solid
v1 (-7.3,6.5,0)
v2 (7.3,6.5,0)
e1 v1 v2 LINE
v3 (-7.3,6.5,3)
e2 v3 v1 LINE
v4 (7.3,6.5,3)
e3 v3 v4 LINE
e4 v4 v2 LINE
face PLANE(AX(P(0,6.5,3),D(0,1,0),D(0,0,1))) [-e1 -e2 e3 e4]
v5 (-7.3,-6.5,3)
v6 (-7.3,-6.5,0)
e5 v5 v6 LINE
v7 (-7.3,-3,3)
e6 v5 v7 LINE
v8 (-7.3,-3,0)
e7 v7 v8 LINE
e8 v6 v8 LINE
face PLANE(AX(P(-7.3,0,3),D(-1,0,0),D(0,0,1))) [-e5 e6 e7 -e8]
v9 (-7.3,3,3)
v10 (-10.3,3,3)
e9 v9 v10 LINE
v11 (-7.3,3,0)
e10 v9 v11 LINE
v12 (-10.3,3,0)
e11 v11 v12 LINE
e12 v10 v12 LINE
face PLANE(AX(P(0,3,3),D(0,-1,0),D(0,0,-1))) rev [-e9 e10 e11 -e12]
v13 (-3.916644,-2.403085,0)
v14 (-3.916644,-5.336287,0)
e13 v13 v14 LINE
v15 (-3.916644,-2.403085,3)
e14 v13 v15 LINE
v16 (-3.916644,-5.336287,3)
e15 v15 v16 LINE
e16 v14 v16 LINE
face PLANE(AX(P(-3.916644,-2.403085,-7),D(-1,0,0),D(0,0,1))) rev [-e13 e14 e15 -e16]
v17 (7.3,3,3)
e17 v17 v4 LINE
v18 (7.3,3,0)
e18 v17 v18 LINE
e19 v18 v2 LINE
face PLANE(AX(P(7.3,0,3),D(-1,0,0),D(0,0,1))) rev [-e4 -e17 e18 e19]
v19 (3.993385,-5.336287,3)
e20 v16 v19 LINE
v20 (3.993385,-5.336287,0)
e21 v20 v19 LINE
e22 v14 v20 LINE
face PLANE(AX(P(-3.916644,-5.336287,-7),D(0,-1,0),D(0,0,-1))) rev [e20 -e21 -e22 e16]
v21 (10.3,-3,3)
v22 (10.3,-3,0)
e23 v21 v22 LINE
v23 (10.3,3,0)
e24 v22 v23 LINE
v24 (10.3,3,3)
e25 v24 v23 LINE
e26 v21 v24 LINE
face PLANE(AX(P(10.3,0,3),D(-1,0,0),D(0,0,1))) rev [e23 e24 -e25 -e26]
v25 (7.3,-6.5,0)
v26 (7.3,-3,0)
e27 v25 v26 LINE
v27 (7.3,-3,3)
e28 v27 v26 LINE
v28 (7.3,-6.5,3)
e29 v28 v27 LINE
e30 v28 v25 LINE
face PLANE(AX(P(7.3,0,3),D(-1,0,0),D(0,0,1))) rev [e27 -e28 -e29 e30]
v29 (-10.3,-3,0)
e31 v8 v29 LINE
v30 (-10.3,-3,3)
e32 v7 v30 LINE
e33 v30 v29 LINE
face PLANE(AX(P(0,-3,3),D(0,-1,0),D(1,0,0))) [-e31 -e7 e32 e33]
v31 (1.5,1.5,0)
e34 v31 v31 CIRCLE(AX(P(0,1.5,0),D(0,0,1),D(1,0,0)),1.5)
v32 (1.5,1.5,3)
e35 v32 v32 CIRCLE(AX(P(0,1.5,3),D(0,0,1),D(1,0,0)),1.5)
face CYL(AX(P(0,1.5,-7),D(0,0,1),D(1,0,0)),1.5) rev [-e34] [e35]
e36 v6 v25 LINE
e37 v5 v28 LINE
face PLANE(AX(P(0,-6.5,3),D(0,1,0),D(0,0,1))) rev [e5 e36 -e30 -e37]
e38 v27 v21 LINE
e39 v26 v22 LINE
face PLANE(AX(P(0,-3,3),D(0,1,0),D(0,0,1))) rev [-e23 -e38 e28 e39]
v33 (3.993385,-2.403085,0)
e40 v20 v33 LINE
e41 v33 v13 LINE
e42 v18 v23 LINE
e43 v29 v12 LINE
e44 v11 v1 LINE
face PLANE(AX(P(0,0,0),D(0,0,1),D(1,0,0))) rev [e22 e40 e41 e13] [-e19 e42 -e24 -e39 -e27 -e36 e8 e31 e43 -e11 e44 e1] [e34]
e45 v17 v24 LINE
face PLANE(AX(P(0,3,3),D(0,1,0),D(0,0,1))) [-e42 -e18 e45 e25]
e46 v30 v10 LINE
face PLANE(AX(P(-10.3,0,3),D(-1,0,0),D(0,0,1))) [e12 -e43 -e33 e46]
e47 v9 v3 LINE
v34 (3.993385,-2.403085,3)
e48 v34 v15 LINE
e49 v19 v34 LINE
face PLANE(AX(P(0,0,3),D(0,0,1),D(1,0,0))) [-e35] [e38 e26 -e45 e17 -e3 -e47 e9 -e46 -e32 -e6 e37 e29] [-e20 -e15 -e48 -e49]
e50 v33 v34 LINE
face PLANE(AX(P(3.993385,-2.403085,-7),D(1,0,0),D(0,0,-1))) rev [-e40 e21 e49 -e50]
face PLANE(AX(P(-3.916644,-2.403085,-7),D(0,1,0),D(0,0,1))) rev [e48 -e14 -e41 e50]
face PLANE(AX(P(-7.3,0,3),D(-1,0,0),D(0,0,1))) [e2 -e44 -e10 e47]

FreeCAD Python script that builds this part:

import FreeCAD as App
import Part
import Sketcher
from FreeCAD import Vector
Q = App.Units.Quantity


def add_polygon(sketch, points):
    """Adds a closed chain of lines whose ends are joined by coincident constraints."""
    first, n = sketch.GeometryCount, len(points)
    for a, b in zip(points, points[1:] + points[:1]):
        sketch.addGeometry(Part.LineSegment(App.Vector(*a, 0), App.Vector(*b, 0)), False)
    for i in range(n):
        sketch.addConstraint(Sketcher.Constraint("Coincident", first + i, 2, first + (i + 1) % n, 1))

doc = App.newDocument("Part")
body = doc.addObject("PartDesign::Body", "Body")

# Sketch on XY plane
sketch1 = doc.addObject("Sketcher::SketchObject", "Sketch")
body.addObject(sketch1)
sketch1.AttachmentSupport = (doc.XY_Plane, [""])
sketch1.MapMode = "FlatFace"
add_polygon(sketch1, [(-7.3, -3), (-7.3, -6.5), (7.3, -6.5), (7.3, -3), (10.3, -3), (10.3, 3), (7.3, 3), (7.3, 6.5), (-7.3, 6.5), (-7.3, 3), (-10.3, 3), (-10.3, -3)])  # lines 0-11
sketch1.addConstraint([
    Sketcher.Constraint("Vertical", 0),
    Sketcher.Constraint("Horizontal", 1),
    Sketcher.Constraint("Vertical", 2),
    Sketcher.Constraint("Horizontal", 3),
    Sketcher.Constraint("Vertical", 4),
    Sketcher.Constraint("Horizontal", 5),
    Sketcher.Constraint("Vertical", 6),
    Sketcher.Constraint("Horizontal", 7),
    Sketcher.Constraint("Vertical", 8),
    Sketcher.Constraint("Horizontal", 9),
    Sketcher.Constraint("Vertical", 10),
    Sketcher.Constraint("Horizontal", 11),
    Sketcher.Constraint("Symmetric", 0, 2, 6, 2, -1, 1),
    Sketcher.Constraint("Symmetric", 2, 2, 8, 2, -1, 1),
    Sketcher.Constraint("Symmetric", 4, 2, 10, 2, -1, 1),
    Sketcher.Constraint("Symmetric", 5, 2, 8, 2, -2),
    Sketcher.Constraint("DistanceX", 3, 1, 3, 2, Q("3 mm")),
    Sketcher.Constraint("DistanceY", 4, 1, 4, 2, Q("6 mm")),
    Sketcher.Constraint("DistanceX", 1, 1, 1, 2, Q("14.6 mm")),
    Sketcher.Constraint("DistanceY", 0, 2, 0, 1, Q("3.5 mm")),
])
pad1 = doc.addObject("PartDesign::Pad", "Pad")
body.addObject(pad1)
pad1.Profile = sketch1
pad1.Length = 3

# Sketch on XY plane
sketch2 = doc.addObject("Sketcher::SketchObject", "Sketch001")
body.addObject(sketch2)
sketch2.AttachmentSupport = (doc.XY_Plane, [""])
sketch2.MapMode = "FlatFace"
sketch2.AttachmentOffset = App.Placement(Vector(0, 0, 3), App.Rotation())
sketch2.addGeometry(Part.Circle(Vector(0, 1.5, 0), Vector(0, 0, 1), 1.5), False)  # 0
add_polygon(sketch2, [(-3.916644, -2.403085), (-3.916644, -5.336287), (3.993385, -5.336287), (3.993385, -2.403085)])  # lines 1-4
sketch2.addConstraint([
    Sketcher.Constraint("Vertical", 1),
    Sketcher.Constraint("Horizontal", 2),
    Sketcher.Constraint("Vertical", 3),
    Sketcher.Constraint("Horizontal", 4),
    Sketcher.Constraint("PointOnObject", 0, 3, -2),
    Sketcher.Constraint("Diameter", 0, Q("3 mm")),
    Sketcher.Constraint("DistanceY", -1, 1, 0, 3, Q("1.5 mm")),
    Sketcher.Constraint("DistanceX", 2, 1, 2, 2, Q("7.910029 mm")),
    Sketcher.Constraint("DistanceY", 1, 2, 1, 1, Q("2.933202 mm")),
    Sketcher.Constraint("DistanceX", 1, 2, -1, 1, Q("3.916644 mm")),
    Sketcher.Constraint("DistanceY", 1, 2, -1, 1, Q("5.336287 mm")),
])
pocket1 = doc.addObject("PartDesign::Pocket", "Pocket")
body.addObject(pocket1)
pocket1.Profile = sketch2
pocket1.Length = 10

doc.recompute()
